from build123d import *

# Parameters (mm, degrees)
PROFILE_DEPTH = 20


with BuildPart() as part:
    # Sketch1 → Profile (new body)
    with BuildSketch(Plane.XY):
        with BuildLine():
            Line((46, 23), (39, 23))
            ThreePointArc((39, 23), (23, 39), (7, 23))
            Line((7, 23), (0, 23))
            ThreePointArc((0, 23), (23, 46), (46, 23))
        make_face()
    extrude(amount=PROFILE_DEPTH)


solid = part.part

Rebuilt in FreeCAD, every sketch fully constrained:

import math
import FreeCAD as App
import Part
import Sketcher

V = App.Vector
Q = App.Units.Quantity

doc = App.newDocument("Part")
body = doc.addObject("PartDesign::Body", "Body")

sketch1 = doc.addObject("Sketcher::SketchObject", "Sketch")
body.addObject(sketch1)
sketch1.AttachmentSupport = (doc.XY_Plane, [""])
sketch1.MapMode = "FlatFace"
sketch1.addGeometry(Part.LineSegment(V(39, 23, 0), V(46, 23, 0)), False)
sketch1.addGeometry(Part.ArcOfCircle(Part.Circle(V(23, 23, 0), V(0, 0, 1), 23), math.radians(0), math.radians(180)), False)
sketch1.addGeometry(Part.LineSegment(V(0, 23, 0), V(7, 23, 0)), False)
sketch1.addGeometry(Part.ArcOfCircle(Part.Circle(V(23, 23, 0), V(0, 0, 1), 16), math.radians(0), math.radians(180)), False)
sketch1.addConstraint(Sketcher.Constraint("Coincident", 0, 2, 1, 1))
sketch1.addConstraint(Sketcher.Constraint("Coincident", 1, 2, 2, 1))
sketch1.addConstraint(Sketcher.Constraint("Coincident", 2, 2, 3, 2))
sketch1.addConstraint(Sketcher.Constraint("Coincident", 3, 1, 0, 1))
sketch1.addConstraint(Sketcher.Constraint("Horizontal", 0))
sketch1.addConstraint(Sketcher.Constraint("Horizontal", 2))
sketch1.addConstraint(Sketcher.Constraint("Coincident", 3, 3, 1, 3))
sketch1.addConstraint(Sketcher.Constraint("PointOnObject", 1, 2, -2))
sketch1.addConstraint(Sketcher.Constraint("Horizontal", 3, 3, 0, 2))
sketch1.addConstraint(Sketcher.Constraint("Horizontal", 0, 2, 1, 2))
sketch1.addConstraint(Sketcher.Constraint("Radius", 1, Q("23 mm")))
sketch1.addConstraint(Sketcher.Constraint("Radius", 3, Q("16 mm")))
sketch1.addConstraint(Sketcher.Constraint("DistanceY", -1, 1, 1, 3, Q("23 mm")))
pad1 = doc.addObject("PartDesign::Pad", "Pad")
body.addObject(pad1)
pad1.Profile = sketch1
pad1.Length = 20

doc.recompute()
